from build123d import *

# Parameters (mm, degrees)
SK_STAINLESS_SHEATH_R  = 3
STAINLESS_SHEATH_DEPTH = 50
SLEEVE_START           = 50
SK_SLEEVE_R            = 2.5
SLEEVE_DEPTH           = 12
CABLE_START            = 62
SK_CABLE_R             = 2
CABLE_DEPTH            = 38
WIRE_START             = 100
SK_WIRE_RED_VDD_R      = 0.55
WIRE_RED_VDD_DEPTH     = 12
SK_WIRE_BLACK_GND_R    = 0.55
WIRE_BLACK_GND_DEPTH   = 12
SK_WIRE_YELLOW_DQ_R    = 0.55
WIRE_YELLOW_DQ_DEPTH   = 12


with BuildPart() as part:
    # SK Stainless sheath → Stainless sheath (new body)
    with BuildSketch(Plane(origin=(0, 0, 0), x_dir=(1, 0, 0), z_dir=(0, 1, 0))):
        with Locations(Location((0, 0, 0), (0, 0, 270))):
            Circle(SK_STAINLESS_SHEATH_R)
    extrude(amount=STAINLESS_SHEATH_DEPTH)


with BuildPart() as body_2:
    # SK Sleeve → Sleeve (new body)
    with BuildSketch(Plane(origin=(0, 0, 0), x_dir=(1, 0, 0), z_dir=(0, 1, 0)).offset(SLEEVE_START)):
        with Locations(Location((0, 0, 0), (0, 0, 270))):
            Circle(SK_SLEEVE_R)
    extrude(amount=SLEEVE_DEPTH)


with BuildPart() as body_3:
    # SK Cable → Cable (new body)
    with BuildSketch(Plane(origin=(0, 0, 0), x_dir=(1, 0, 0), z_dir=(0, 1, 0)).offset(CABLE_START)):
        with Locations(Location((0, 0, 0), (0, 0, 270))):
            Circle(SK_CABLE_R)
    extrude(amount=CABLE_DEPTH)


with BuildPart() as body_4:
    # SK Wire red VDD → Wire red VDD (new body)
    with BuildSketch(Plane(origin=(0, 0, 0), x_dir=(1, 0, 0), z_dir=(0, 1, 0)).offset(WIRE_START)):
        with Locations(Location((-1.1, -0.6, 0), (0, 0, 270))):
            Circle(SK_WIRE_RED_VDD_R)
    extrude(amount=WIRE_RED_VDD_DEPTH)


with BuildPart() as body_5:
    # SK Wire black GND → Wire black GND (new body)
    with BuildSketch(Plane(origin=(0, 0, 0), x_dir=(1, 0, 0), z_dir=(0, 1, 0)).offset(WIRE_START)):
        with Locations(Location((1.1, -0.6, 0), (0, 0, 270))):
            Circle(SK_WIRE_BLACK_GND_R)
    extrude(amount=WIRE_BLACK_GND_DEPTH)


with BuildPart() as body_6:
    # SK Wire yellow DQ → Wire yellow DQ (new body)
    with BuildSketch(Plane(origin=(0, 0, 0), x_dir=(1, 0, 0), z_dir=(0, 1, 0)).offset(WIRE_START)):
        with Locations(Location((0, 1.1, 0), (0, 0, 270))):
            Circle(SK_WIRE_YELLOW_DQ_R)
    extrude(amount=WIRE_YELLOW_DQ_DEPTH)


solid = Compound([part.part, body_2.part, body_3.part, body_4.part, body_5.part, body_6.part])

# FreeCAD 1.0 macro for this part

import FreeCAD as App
import Part
import Sketcher

doc = App.newDocument("Part")
params = doc.addObject("Spreadsheet::Sheet", "Params")
for row, (alias, value) in enumerate([
    ("sketch1_diameter", "6 mm"),
    ("pad1_length", "50 mm"),
    ("sketch2_diameter", "5 mm"),
    ("pad2_length", "12 mm"),
    ("sketch3_diameter", "4 mm"),
    ("pad3_length", "38 mm"),
    ("sketch4_diameter", "1.1 mm"),
    ("pad4_length", "12 mm"),
    ("sketch5_diameter", "1.1 mm"),
    ("pad5_length", "12 mm"),
    ("sketch6_diameter", "1.1 mm"),
    ("pad6_length", "12 mm"),
], start=1):
    params.set(f"A{row}", alias)
    params.set(f"B{row}", "=" + value)
    params.setAlias(f"B{row}", alias)

body = doc.addObject("PartDesign::Body", "Body")

sketch1 = body.newObject("Sketcher::SketchObject", "Sketch")
sketch1.AttachmentSupport = (doc.getObject("XZ_Plane"), [""])
sketch1.MapMode = "FlatFace"
sketch1.addGeometry(Part.Circle(App.Vector(0, 0, 0), App.Vector(0, 0, 1), 3), False)
sketch1.addConstraint([
    Sketcher.Constraint("Coincident", 0, 3, -1, 1),
    Sketcher.Constraint("Diameter", 0, 6.0),
])
sketch1.setExpression("Constraints[1]", "Params.sketch1_diameter")
pad1 = body.newObject("PartDesign::Pad", "Pad")
pad1.Profile = sketch1
pad1.setExpression("Length", "Params.pad1_length")
pad1.Reversed = True
body2 = doc.addObject("PartDesign::Body", "Body001")

sketch2 = body2.newObject("Sketcher::SketchObject", "Sketch001")
sketch2.AttachmentSupport = (doc.getObject("XZ_Plane001"), [""])
sketch2.MapMode = "FlatFace"
sketch2.AttachmentOffset = App.Placement(App.Vector(0, 0, -50), App.Rotation())
sketch2.addGeometry(Part.Circle(App.Vector(0, 0, 0), App.Vector(0, 0, 1), 2.5), False)
sketch2.addConstraint([
    Sketcher.Constraint("Coincident", 0, 3, -1, 1),
    Sketcher.Constraint("Diameter", 0, 5.0),
])
sketch2.setExpression("Constraints[1]", "Params.sketch2_diameter")
pad2 = body2.newObject("PartDesign::Pad", "Pad001")
pad2.Profile = sketch2
pad2.setExpression("Length", "Params.pad2_length")
pad2.Reversed = True
body3 = doc.addObject("PartDesign::Body", "Body002")

sketch3 = body3.newObject("Sketcher::SketchObject", "Sketch002")
sketch3.AttachmentSupport = (doc.getObject("XZ_Plane002"), [""])
sketch3.MapMode = "FlatFace"
sketch3.AttachmentOffset = App.Placement(App.Vector(0, 0, -62), App.Rotation())
sketch3.addGeometry(Part.Circle(App.Vector(0, 0, 0), App.Vector(0, 0, 1), 2), False)
sketch3.addConstraint([
    Sketcher.Constraint("Coincident", 0, 3, -1, 1),
    Sketcher.Constraint("Diameter", 0, 4.0),
])
sketch3.setExpression("Constraints[1]", "Params.sketch3_diameter")
pad3 = body3.newObject("PartDesign::Pad", "Pad002")
pad3.Profile = sketch3
pad3.setExpression("Length", "Params.pad3_length")
pad3.Reversed = True
body4 = doc.addObject("PartDesign::Body", "Body003")

sketch4 = body4.newObject("Sketcher::SketchObject", "Sketch003")
sketch4.AttachmentSupport = (doc.getObject("XZ_Plane003"), [""])
sketch4.MapMode = "FlatFace"
sketch4.AttachmentOffset = App.Placement(App.Vector(0, 0, -100), App.Rotation())
sketch4.addGeometry(Part.Circle(App.Vector(-1.1, 0.6, 0), App.Vector(0, 0, 1), 0.6), False)
sketch4.addConstraint([
    Sketcher.Constraint("Diameter", 0, 1.1),
    Sketcher.Constraint("DistanceX", 0, 3, -1, 1, 1.1),
    Sketcher.Constraint("DistanceY", -1, 1, 0, 3, 0.6),
])
sketch4.setExpression("Constraints[0]", "Params.sketch4_diameter")
pad4 = body4.newObject("PartDesign::Pad", "Pad003")
pad4.Profile = sketch4
pad4.setExpression("Length", "Params.pad4_length")
pad4.Reversed = True
body5 = doc.addObject("PartDesign::Body", "Body004")

sketch5 = body5.newObject("Sketcher::SketchObject", "Sketch004")
sketch5.AttachmentSupport = (doc.getObject("XZ_Plane004"), [""])
sketch5.MapMode = "FlatFace"
sketch5.AttachmentOffset = App.Placement(App.Vector(0, 0, -100), App.Rotation())
sketch5.addGeometry(Part.Circle(App.Vector(1.1, 0.6, 0), App.Vector(0, 0, 1), 0.6), False)
sketch5.addConstraint([
    Sketcher.Constraint("Diameter", 0, 1.1),
    Sketcher.Constraint("DistanceX", -1, 1, 0, 3, 1.1),
    Sketcher.Constraint("DistanceY", -1, 1, 0, 3, 0.6),
])
sketch5.setExpression("Constraints[0]", "Params.sketch5_diameter")
pad5 = body5.newObject("PartDesign::Pad", "Pad004")
pad5.Profile = sketch5
pad5.setExpression("Length", "Params.pad5_length")
pad5.Reversed = True
body6 = doc.addObject("PartDesign::Body", "Body005")

sketch6 = body6.newObject("Sketcher::SketchObject", "Sketch005")
sketch6.AttachmentSupport = (doc.getObject("XZ_Plane005"), [""])
sketch6.MapMode = "FlatFace"
sketch6.AttachmentOffset = App.Placement(App.Vector(0, 0, -100), App.Rotation())
sketch6.addGeometry(Part.Circle(App.Vector(0, -1.1, 0), App.Vector(0, 0, 1), 0.6), False)
sketch6.addConstraint([
    Sketcher.Constraint("PointOnObject", 0, 3, -2),
    Sketcher.Constraint("Diameter", 0, 1.1),
    Sketcher.Constraint("DistanceY", 0, 3, -1, 1, 1.1),
])
sketch6.setExpression("Constraints[1]", "Params.sketch6_diameter")
pad6 = body6.newObject("PartDesign::Pad", "Pad005")
pad6.Profile = sketch6
pad6.setExpression("Length", "Params.pad6_length")
pad6.Reversed = True

doc.recompute()
